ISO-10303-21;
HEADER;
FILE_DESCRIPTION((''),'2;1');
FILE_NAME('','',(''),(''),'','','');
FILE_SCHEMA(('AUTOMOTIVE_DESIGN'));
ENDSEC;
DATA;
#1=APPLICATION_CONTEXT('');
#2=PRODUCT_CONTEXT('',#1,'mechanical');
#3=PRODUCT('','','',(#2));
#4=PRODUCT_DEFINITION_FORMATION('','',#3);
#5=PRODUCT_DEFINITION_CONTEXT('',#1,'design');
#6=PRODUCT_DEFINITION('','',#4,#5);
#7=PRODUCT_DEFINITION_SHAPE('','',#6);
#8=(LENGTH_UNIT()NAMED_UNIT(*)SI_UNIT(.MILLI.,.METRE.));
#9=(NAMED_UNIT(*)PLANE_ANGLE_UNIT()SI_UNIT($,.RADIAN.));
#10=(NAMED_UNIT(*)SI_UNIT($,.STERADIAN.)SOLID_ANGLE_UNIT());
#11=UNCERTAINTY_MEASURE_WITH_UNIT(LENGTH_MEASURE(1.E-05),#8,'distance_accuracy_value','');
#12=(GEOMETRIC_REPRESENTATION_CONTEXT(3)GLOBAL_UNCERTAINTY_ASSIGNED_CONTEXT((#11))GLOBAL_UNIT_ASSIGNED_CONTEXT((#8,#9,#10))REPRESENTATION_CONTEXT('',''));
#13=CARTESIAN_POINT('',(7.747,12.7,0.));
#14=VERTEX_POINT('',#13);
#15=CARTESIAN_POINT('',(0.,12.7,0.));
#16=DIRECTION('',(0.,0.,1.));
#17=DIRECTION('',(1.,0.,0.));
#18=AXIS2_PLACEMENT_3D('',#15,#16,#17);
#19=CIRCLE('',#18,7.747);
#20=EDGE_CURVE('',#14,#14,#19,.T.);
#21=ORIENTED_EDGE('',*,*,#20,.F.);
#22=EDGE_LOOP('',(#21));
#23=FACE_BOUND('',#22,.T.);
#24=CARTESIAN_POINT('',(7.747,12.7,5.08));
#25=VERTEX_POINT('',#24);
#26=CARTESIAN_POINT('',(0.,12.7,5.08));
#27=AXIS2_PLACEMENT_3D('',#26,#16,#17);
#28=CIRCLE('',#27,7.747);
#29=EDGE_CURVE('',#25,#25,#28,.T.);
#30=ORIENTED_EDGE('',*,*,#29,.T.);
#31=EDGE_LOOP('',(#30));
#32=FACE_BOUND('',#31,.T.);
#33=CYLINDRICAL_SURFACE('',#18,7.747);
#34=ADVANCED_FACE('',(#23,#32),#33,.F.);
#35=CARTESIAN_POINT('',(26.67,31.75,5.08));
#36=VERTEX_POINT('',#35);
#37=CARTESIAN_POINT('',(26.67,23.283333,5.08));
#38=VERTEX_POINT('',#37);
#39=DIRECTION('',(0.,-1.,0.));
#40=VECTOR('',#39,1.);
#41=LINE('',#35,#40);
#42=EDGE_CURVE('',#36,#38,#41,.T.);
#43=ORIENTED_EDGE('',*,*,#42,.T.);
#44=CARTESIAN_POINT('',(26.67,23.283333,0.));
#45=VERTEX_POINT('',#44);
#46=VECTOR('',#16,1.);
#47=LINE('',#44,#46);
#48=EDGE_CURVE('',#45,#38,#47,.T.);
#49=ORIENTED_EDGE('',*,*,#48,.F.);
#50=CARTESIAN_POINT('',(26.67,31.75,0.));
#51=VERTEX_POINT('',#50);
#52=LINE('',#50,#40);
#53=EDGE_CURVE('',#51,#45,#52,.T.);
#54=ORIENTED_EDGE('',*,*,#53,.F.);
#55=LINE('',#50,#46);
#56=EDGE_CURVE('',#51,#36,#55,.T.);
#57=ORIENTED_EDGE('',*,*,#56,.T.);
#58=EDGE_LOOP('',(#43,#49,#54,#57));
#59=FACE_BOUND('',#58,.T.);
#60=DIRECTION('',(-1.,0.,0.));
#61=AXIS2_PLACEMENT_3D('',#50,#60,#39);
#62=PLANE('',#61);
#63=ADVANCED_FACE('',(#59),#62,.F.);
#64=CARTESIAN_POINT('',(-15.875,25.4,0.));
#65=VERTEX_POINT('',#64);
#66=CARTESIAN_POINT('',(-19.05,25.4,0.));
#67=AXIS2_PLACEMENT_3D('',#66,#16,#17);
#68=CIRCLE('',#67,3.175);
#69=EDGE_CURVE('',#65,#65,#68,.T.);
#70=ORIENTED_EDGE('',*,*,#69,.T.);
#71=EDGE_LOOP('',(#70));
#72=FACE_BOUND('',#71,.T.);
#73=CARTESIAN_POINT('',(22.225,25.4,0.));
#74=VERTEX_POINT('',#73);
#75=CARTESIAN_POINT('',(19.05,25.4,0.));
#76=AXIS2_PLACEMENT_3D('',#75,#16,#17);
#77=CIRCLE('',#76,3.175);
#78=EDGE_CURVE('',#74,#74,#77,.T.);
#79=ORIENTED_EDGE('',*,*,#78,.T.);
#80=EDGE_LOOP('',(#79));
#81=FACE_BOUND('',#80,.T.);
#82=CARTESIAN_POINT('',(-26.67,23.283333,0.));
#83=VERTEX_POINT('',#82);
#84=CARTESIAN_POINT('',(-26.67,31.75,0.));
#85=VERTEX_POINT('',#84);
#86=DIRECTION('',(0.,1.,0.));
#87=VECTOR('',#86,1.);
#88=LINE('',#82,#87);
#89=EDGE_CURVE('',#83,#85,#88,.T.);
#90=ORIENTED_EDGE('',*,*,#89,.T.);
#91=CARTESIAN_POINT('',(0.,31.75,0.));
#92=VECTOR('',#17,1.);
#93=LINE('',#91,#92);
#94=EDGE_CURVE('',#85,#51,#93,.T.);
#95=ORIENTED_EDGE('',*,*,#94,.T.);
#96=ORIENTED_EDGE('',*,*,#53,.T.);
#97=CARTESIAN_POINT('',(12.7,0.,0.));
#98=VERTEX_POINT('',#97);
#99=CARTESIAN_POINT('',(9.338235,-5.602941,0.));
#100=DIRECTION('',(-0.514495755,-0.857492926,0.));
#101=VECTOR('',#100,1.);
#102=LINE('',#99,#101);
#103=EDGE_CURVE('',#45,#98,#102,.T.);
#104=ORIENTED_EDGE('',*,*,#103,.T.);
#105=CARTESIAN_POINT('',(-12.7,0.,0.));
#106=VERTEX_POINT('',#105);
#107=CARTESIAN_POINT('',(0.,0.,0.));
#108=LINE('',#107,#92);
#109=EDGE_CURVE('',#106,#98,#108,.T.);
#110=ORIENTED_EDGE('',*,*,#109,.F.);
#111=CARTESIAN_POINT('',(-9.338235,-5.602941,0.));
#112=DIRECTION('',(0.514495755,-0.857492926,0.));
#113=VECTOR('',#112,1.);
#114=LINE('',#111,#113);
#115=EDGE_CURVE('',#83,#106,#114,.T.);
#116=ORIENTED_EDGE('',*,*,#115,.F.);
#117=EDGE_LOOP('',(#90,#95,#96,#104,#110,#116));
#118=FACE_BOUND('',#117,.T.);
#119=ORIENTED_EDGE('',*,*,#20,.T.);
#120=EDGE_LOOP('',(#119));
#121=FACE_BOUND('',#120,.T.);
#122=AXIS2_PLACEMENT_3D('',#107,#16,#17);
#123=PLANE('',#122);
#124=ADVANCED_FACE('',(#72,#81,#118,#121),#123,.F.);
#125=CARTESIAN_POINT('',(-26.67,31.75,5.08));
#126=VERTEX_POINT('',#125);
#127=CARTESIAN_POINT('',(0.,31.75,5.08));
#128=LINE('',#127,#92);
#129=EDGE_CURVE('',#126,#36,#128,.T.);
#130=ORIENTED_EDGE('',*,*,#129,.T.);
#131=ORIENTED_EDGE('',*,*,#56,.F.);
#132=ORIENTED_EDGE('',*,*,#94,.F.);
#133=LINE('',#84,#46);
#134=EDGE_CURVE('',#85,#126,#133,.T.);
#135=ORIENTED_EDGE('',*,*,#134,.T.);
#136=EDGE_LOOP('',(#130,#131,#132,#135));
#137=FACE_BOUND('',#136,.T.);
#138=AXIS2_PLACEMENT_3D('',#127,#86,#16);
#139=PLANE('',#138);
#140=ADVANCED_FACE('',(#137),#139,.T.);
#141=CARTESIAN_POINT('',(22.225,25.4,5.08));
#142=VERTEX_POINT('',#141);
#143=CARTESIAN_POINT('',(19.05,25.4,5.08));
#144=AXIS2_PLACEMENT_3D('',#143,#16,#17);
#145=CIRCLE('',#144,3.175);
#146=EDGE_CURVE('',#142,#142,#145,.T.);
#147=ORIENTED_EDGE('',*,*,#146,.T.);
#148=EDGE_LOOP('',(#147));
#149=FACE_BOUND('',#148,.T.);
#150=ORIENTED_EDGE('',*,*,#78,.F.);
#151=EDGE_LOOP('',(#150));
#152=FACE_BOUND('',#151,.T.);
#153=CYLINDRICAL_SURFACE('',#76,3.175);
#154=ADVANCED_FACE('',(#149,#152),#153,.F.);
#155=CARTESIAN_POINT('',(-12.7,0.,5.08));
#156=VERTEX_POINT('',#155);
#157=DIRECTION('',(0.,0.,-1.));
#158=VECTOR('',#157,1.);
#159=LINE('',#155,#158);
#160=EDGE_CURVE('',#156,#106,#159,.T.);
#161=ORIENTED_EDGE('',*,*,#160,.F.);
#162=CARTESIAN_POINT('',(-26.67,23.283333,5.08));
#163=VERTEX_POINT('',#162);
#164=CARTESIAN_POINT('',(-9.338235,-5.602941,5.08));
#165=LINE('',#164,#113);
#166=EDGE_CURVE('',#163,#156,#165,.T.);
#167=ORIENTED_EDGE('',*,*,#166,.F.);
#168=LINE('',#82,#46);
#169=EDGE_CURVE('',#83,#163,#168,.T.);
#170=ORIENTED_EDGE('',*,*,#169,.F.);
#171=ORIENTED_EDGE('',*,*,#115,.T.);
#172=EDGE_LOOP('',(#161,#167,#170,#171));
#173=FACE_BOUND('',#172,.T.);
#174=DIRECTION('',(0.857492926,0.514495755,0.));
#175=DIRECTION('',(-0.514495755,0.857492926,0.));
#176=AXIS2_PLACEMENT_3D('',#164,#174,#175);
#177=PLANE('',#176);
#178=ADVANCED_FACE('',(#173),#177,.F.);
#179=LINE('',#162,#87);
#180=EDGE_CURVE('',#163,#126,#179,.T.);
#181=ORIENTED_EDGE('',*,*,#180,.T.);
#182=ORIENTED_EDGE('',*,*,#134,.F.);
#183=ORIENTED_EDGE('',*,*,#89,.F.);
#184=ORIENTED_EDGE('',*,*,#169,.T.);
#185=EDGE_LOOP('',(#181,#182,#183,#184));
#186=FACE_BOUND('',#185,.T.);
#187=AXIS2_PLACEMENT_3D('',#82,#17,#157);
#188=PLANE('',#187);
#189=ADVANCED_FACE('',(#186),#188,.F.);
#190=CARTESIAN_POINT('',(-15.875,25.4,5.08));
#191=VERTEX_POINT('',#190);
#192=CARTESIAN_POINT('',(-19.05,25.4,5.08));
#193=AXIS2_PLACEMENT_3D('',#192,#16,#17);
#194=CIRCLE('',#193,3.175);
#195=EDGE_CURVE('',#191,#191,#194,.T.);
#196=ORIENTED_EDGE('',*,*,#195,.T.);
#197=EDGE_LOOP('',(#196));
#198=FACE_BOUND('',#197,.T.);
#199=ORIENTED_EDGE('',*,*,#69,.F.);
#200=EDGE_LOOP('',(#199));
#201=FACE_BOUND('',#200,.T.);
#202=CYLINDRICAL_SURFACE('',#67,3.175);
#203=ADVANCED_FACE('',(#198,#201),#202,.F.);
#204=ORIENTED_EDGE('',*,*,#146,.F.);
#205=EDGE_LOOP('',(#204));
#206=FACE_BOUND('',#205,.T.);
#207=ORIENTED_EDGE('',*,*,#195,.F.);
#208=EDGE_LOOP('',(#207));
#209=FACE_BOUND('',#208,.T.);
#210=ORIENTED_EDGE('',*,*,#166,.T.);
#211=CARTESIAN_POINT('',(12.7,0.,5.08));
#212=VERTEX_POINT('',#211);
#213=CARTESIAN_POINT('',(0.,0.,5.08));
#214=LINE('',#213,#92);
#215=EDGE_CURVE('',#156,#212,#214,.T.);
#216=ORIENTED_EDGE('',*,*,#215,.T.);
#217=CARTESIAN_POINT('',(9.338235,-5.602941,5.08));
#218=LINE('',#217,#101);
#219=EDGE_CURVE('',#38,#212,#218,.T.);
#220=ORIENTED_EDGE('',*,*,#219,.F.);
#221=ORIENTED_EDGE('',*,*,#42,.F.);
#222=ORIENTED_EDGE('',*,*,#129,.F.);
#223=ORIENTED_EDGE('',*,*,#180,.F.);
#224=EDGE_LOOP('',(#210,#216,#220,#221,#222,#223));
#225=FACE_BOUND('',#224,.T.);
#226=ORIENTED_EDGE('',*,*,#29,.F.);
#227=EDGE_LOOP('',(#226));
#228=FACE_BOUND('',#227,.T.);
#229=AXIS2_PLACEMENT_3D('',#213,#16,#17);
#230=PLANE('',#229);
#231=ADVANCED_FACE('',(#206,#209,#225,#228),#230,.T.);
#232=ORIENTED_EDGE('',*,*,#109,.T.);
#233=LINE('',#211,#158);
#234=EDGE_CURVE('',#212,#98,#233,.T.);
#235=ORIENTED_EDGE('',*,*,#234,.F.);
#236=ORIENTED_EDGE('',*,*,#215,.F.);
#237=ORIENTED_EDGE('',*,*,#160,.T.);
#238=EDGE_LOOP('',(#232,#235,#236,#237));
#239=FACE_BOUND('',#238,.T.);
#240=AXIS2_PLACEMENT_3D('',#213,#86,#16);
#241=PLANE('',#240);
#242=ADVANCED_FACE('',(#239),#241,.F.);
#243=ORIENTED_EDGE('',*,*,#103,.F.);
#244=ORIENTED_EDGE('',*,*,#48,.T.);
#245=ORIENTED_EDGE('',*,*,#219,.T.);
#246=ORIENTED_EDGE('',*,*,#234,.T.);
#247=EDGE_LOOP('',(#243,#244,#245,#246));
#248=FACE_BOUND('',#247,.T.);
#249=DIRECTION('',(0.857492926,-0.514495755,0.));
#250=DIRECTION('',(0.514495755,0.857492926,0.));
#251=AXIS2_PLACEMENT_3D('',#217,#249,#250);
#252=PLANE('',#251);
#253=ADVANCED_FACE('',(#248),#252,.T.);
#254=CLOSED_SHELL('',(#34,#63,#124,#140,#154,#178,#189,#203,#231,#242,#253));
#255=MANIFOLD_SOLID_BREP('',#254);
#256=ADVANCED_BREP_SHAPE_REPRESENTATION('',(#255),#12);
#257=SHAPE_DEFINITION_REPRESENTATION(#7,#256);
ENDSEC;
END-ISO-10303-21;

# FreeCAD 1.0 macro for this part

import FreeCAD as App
import Part
import Sketcher
from FreeCAD import Vector
Q = App.Units.Quantity


def add_polygon(sketch, points):
    """Adds a closed chain of lines whose ends are joined by coincident constraints."""
    first, n = sketch.GeometryCount, len(points)
    for a, b in zip(points, points[1:] + points[:1]):
        sketch.addGeometry(Part.LineSegment(App.Vector(*a, 0), App.Vector(*b, 0)), False)
    for i in range(n):
        sketch.addConstraint(Sketcher.Constraint("Coincident", first + i, 2, first + (i + 1) % n, 1))

doc = App.newDocument("Part")
body = doc.addObject("PartDesign::Body", "Body")

sketch1 = body.newObject("Sketcher::SketchObject", "Sketch")
sketch1.AttachmentSupport = (doc.getObject("XY_Plane"), [""])
sketch1.MapMode = "FlatFace"
add_polygon(sketch1, [(31.75, 31.75), (-31.75, 31.75), (-12.7, 0), (12.7, 0)])
sketch1.addConstraint([
    Sketcher.Constraint("Horizontal", 0),
    Sketcher.Constraint("Horizontal", 2),
    Sketcher.Constraint("Symmetric", 1, 2, 2, 2, -1, 1),
    Sketcher.Constraint("Equal", 1, 3),
    Sketcher.Constraint("DistanceX", 2, 1, 2, 2, Q("1 in")),
    Sketcher.Constraint("DistanceX", 0, 2, 0, 1, Q("2.5 in")),
    Sketcher.Constraint("DistanceY", -1, 1, 0, 2, Q("1.25 in")),
])
pad1 = body.newObject("PartDesign::Pad", "Pad")
pad1.Profile = sketch1
pad1.Length = Q("0.2 in")

sketch2 = body.newObject("Sketcher::SketchObject", "Sketch001")
sketch2.AttachmentSupport = (doc.getObject("XY_Plane"), [""])
sketch2.MapMode = "FlatFace"
sketch2.AttachmentOffset = App.Placement(Vector(0, 0, 0.2 * 25.4), App.Rotation())
sketch2.addGeometry(Part.Circle(Vector(0, 12.7, 0), Vector(0, 0, 1), 7.747), False)
sketch2.addGeometry(Part.Circle(Vector(-19.05, 25.4, 0), Vector(0, 0, 1), 3.175), False)
sketch2.addGeometry(Part.Circle(Vector(19.05, 25.4, 0), Vector(0, 0, 1), 3.175), False)
add_polygon(sketch2, [(-26.67, 23.283333), (-26.67, 31.75), (-31.75, 31.75)])
add_polygon(sketch2, [(26.67, 31.75), (26.67, 23.283333), (31.75, 31.75)])
sketch2.addConstraint([
    Sketcher.Constraint("Vertical", 3),
    Sketcher.Constraint("Horizontal", 4),
    Sketcher.Constraint("Vertical", 6),
    Sketcher.Constraint("Horizontal", 8),
    Sketcher.Constraint("Equal", 1, 2),
    Sketcher.Constraint("Symmetric", 1, 3, 2, 3, -2),
    Sketcher.Constraint("Symmetric", 5, 2, 6, 2, -2),
    Sketcher.Constraint("Symmetric", 4, 2, 7, 2, -2),
    Sketcher.Constraint("PointOnObject", 0, 3, -2),
    Sketcher.Constraint("Diameter", 0, Q("0.61 in")),
    Sketcher.Constraint("Diameter", 1, Q("0.25 in")),
    Sketcher.Constraint("DistanceX", 4, 2, 4, 1, Q("0.2 in")),
    Sketcher.Constraint("DistanceY", -1, 1, 1, 3, Q("1 in")),
    Sketcher.Constraint("DistanceX", 4, 2, 2, 3, Q("2 in")),
    Sketcher.Constraint("DistanceY", -1, 1, 0, 3, Q("0.5 in")),
    Sketcher.Constraint("DistanceX", 1, 3, 2, 3, Q("1.5 in")),
    Sketcher.Constraint("DistanceY", -1, 1, 3, 2, Q("1.25 in")),
    Sketcher.Constraint("DistanceY", 3, 1, 3, 2, Q("8.466667 mm")),
])
pocket1 = body.newObject("PartDesign::Pocket", "Pocket")
pocket1.Profile = sketch2
pocket1.Length = Q("0.2 in")

doc.recompute()
